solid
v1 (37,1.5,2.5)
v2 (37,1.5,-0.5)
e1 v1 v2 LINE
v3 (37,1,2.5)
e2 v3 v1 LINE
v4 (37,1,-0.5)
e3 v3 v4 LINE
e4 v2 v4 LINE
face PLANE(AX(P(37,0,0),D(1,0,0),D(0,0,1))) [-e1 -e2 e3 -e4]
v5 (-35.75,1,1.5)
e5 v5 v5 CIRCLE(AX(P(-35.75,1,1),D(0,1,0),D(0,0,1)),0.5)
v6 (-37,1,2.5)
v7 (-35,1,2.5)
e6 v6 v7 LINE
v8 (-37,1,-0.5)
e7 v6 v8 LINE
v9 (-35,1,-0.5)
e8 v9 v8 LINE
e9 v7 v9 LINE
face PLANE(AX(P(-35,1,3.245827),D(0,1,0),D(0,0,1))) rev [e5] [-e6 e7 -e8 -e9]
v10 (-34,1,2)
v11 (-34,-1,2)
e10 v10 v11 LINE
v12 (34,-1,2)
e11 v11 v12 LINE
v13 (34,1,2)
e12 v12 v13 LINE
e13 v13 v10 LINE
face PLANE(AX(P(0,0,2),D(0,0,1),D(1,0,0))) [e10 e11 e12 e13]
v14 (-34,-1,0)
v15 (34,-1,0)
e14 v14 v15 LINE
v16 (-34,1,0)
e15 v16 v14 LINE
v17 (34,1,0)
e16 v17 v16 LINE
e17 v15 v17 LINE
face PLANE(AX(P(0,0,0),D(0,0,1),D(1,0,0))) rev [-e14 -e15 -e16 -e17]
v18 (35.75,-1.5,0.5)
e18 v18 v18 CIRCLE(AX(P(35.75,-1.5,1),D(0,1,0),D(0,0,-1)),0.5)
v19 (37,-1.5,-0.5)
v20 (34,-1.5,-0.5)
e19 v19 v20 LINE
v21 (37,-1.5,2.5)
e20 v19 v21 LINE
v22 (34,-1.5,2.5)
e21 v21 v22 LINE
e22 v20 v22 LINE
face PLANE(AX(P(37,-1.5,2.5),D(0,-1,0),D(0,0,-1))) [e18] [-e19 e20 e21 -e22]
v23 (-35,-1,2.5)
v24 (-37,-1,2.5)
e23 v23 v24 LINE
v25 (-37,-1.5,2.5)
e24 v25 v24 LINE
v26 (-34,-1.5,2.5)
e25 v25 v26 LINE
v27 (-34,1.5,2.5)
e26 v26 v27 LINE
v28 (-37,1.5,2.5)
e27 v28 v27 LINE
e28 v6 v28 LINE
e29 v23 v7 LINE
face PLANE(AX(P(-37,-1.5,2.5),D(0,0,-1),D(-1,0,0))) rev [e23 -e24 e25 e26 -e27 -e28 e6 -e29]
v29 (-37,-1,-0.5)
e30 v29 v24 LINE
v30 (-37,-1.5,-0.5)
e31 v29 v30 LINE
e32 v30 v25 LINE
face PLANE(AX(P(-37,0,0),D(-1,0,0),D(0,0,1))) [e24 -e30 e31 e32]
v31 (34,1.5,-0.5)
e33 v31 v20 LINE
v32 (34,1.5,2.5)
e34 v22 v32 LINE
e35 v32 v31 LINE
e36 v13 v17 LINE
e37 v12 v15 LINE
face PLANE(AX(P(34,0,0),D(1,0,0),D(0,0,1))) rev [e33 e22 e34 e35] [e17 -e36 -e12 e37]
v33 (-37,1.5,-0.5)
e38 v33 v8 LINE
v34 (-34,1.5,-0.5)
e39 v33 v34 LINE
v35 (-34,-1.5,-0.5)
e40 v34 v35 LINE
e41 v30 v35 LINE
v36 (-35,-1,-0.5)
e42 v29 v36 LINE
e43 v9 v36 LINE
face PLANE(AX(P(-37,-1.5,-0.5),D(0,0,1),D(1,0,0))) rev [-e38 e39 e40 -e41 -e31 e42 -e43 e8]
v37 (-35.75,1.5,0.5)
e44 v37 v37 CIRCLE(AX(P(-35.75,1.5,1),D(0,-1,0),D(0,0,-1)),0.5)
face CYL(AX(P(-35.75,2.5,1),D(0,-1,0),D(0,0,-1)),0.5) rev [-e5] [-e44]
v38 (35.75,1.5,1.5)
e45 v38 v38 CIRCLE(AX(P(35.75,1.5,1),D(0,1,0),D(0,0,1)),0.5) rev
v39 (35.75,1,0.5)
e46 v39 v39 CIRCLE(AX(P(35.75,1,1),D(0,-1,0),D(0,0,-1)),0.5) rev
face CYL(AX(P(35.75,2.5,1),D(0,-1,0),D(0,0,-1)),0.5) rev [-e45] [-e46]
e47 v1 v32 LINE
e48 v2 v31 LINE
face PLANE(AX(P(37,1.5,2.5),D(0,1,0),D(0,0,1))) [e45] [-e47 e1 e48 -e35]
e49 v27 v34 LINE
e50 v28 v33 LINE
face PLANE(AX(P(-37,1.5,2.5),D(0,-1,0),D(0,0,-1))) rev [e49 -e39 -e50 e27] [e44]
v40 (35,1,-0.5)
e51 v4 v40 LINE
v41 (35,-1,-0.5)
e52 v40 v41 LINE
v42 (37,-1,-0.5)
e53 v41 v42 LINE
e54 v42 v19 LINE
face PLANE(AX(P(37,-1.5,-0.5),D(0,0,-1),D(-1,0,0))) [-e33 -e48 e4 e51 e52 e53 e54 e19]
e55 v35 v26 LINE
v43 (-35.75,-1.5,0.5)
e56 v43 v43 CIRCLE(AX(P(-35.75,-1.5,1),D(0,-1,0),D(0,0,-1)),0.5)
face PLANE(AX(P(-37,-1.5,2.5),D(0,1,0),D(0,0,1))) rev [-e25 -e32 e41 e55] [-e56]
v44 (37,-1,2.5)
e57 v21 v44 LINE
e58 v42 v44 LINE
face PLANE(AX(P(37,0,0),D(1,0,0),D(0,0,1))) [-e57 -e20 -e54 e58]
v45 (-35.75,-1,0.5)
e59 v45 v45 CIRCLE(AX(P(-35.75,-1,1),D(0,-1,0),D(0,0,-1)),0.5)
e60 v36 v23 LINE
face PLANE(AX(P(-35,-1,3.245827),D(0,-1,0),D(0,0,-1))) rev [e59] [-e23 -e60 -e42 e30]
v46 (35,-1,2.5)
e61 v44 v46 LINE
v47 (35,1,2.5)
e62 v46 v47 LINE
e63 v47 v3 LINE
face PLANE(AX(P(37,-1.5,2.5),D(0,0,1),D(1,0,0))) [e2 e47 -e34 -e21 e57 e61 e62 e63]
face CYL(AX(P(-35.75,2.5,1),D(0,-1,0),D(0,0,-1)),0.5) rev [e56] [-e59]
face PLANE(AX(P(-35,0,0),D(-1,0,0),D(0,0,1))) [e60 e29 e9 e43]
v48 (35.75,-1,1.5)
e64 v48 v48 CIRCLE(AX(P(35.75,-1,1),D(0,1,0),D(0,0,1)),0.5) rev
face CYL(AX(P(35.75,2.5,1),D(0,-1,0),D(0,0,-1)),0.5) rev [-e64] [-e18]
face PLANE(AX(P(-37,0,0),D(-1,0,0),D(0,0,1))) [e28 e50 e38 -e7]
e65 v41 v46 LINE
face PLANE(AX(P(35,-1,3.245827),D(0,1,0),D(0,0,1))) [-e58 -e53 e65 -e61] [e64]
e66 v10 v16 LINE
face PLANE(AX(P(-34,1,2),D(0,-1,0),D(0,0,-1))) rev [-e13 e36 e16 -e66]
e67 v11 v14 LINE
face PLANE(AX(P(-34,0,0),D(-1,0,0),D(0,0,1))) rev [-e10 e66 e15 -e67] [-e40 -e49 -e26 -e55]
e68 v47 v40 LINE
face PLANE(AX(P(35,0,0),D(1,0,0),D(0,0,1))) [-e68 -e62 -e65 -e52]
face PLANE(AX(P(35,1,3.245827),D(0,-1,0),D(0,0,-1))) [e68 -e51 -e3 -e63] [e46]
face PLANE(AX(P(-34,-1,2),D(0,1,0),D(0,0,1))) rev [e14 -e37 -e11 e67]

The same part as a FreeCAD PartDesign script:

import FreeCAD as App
import Part
import Sketcher
from FreeCAD import Vector
Q = App.Units.Quantity

doc = App.newDocument("Part")
body = doc.addObject("PartDesign::Body", "Body")

# Sketch on XY plane
sketch1 = doc.addObject("Sketcher::SketchObject", "Sketch")
body.addObject(sketch1)
sketch1.AttachmentSupport = (doc.XY_Plane, [""])
sketch1.MapMode = "FlatFace"
sketch1.addGeometry([
    Part.LineSegment(Vector(-34, 1, 0), Vector(-34, -1, 0)),
    Part.LineSegment(Vector(-34, -1, 0), Vector(34, -1, 0)),
    Part.LineSegment(Vector(34, -1, 0), Vector(34, 1, 0)),
    Part.LineSegment(Vector(34, 1, 0), Vector(-34, 1, 0)),
], False)
sketch1.addConstraint([
    Sketcher.Constraint("Coincident", 0, 2, 1, 1),
    Sketcher.Constraint("Coincident", 1, 2, 2, 1),
    Sketcher.Constraint("Coincident", 2, 2, 3, 1),
    Sketcher.Constraint("Coincident", 3, 2, 0, 1),
    Sketcher.Constraint("Vertical", 0),
    Sketcher.Constraint("Horizontal", 1),
    Sketcher.Constraint("Vertical", 2),
    Sketcher.Constraint("Horizontal", 3),
    Sketcher.Constraint("Symmetric", 0, 2, 2, 2, -1, 1),
    Sketcher.Constraint("DistanceX", 1, 1, 1, 2, Q("68 mm")),
    Sketcher.Constraint("DistanceY", 0, 2, 0, 1, Q("2 mm")),
])
pad1 = doc.addObject("PartDesign::Pad", "Pad")
body.addObject(pad1)
pad1.Profile = sketch1
pad1.Length = 2

# Sketch on YZ plane
sketch2 = doc.addObject("Sketcher::SketchObject", "Sketch001")
body.addObject(sketch2)
sketch2.AttachmentSupport = (doc.YZ_Plane, [""])
sketch2.MapMode = "FlatFace"
sketch2.AttachmentOffset = App.Placement(Vector(0, 0, -34), App.Rotation())
sketch2.addGeometry([
    Part.LineSegment(Vector(1.5, -0.5, 0), Vector(-1.5, -0.5, 0)),
    Part.LineSegment(Vector(-1.5, -0.5, 0), Vector(-1.5, 2.5, 0)),
    Part.LineSegment(Vector(-1.5, 2.5, 0), Vector(1.5, 2.5, 0)),
    Part.LineSegment(Vector(1.5, 2.5, 0), Vector(1.5, -0.5, 0)),
], False)
sketch2.addConstraint([
    Sketcher.Constraint("Coincident", 0, 2, 1, 1),
    Sketcher.Constraint("Coincident", 1, 2, 2, 1),
    Sketcher.Constraint("Coincident", 2, 2, 3, 1),
    Sketcher.Constraint("Coincident", 3, 2, 0, 1),
    Sketcher.Constraint("Horizontal", 0),
    Sketcher.Constraint("Vertical", 1),
    Sketcher.Constraint("Horizontal", 2),
    Sketcher.Constraint("Vertical", 3),
    Sketcher.Constraint("Equal", 2, 1),
    Sketcher.Constraint("DistanceX", 0, 2, 0, 1, Q("3 mm")),
    Sketcher.Constraint("DistanceX", 0, 2, -1, 1, Q("1.5 mm")),
    Sketcher.Constraint("DistanceY", 0, 2, -1, 1, Q("0.5 mm")),
])
pad2 = doc.addObject("PartDesign::Pad", "Pad001")
body.addObject(pad2)
pad2.Profile = sketch2
pad2.Length = 3
pad2.Reversed = True

# Sketch on YZ plane
sketch3 = doc.addObject("Sketcher::SketchObject", "Sketch002")
body.addObject(sketch3)
sketch3.AttachmentSupport = (doc.YZ_Plane, [""])
sketch3.MapMode = "FlatFace"
sketch3.AttachmentOffset = App.Placement(Vector(0, 0, -37), App.Rotation())
sketch3.addGeometry([
    Part.LineSegment(Vector(1, -1.1, 0), Vector(-1, -1.1, 0)),
    Part.LineSegment(Vector(-1, -1.1, 0), Vector(-1, 3.2, 0)),
    Part.LineSegment(Vector(-1, 3.2, 0), Vector(1, 3.2, 0)),
    Part.LineSegment(Vector(1, 3.2, 0), Vector(1, -1.1, 0)),
], False)
sketch3.addConstraint([
    Sketcher.Constraint("Coincident", 0, 2, 1, 1),
    Sketcher.Constraint("Coincident", 1, 2, 2, 1),
    Sketcher.Constraint("Coincident", 2, 2, 3, 1),
    Sketcher.Constraint("Coincident", 3, 2, 0, 1),
    Sketcher.Constraint("Horizontal", 0),
    Sketcher.Constraint("Vertical", 1),
    Sketcher.Constraint("Horizontal", 2),
    Sketcher.Constraint("Vertical", 3),
    Sketcher.Constraint("DistanceX", 0, 2, 0, 1, Q("2 mm")),
    Sketcher.Constraint("DistanceX", 0, 2, -1, 1, Q("1 mm")),
    Sketcher.Constraint("DistanceY", 1, 1, 1, 2, Q("4.320543 mm")),
    Sketcher.Constraint("DistanceY", 0, 2, -1, 1, Q("1.074716 mm")),
])
pocket1 = doc.addObject("PartDesign::Pocket", "Pocket")
body.addObject(pocket1)
pocket1.Profile = sketch3
pocket1.Length = 2
pocket1.Reversed = True

# Sketch on XZ plane
sketch4 = doc.addObject("Sketcher::SketchObject", "Sketch003")
body.addObject(sketch4)
sketch4.AttachmentSupport = (doc.XZ_Plane, [""])
sketch4.MapMode = "FlatFace"
sketch4.AttachmentOffset = App.Placement(Vector(0, 0, 1.5), App.Rotation())
sketch4.addGeometry(Part.Circle(Vector(-35.8, 1, 0), Vector(0, 0, 1), 0.5), False)
sketch4.addConstraint([
    Sketcher.Constraint("Diameter", 0, Q("1 mm")),
    Sketcher.Constraint("DistanceY", -1, 1, 0, 3, Q("1 mm")),
    Sketcher.Constraint("DistanceX", 0, 3, -1, 1, Q("35.75 mm")),
])
pocket2 = doc.addObject("PartDesign::Pocket", "Pocket001")
body.addObject(pocket2)
pocket2.Profile = sketch4
pocket2.Length = 4
doc.recompute()

mirrored = doc.addObject("PartDesign::Mirrored", "Mirrored")
body.addObject(mirrored)
mirrored.Originals = [pad2, pocket1, pocket2]
mirrored.MirrorPlane = (doc.YZ_Plane, [""])
body.Tip = mirrored

doc.recompute()
